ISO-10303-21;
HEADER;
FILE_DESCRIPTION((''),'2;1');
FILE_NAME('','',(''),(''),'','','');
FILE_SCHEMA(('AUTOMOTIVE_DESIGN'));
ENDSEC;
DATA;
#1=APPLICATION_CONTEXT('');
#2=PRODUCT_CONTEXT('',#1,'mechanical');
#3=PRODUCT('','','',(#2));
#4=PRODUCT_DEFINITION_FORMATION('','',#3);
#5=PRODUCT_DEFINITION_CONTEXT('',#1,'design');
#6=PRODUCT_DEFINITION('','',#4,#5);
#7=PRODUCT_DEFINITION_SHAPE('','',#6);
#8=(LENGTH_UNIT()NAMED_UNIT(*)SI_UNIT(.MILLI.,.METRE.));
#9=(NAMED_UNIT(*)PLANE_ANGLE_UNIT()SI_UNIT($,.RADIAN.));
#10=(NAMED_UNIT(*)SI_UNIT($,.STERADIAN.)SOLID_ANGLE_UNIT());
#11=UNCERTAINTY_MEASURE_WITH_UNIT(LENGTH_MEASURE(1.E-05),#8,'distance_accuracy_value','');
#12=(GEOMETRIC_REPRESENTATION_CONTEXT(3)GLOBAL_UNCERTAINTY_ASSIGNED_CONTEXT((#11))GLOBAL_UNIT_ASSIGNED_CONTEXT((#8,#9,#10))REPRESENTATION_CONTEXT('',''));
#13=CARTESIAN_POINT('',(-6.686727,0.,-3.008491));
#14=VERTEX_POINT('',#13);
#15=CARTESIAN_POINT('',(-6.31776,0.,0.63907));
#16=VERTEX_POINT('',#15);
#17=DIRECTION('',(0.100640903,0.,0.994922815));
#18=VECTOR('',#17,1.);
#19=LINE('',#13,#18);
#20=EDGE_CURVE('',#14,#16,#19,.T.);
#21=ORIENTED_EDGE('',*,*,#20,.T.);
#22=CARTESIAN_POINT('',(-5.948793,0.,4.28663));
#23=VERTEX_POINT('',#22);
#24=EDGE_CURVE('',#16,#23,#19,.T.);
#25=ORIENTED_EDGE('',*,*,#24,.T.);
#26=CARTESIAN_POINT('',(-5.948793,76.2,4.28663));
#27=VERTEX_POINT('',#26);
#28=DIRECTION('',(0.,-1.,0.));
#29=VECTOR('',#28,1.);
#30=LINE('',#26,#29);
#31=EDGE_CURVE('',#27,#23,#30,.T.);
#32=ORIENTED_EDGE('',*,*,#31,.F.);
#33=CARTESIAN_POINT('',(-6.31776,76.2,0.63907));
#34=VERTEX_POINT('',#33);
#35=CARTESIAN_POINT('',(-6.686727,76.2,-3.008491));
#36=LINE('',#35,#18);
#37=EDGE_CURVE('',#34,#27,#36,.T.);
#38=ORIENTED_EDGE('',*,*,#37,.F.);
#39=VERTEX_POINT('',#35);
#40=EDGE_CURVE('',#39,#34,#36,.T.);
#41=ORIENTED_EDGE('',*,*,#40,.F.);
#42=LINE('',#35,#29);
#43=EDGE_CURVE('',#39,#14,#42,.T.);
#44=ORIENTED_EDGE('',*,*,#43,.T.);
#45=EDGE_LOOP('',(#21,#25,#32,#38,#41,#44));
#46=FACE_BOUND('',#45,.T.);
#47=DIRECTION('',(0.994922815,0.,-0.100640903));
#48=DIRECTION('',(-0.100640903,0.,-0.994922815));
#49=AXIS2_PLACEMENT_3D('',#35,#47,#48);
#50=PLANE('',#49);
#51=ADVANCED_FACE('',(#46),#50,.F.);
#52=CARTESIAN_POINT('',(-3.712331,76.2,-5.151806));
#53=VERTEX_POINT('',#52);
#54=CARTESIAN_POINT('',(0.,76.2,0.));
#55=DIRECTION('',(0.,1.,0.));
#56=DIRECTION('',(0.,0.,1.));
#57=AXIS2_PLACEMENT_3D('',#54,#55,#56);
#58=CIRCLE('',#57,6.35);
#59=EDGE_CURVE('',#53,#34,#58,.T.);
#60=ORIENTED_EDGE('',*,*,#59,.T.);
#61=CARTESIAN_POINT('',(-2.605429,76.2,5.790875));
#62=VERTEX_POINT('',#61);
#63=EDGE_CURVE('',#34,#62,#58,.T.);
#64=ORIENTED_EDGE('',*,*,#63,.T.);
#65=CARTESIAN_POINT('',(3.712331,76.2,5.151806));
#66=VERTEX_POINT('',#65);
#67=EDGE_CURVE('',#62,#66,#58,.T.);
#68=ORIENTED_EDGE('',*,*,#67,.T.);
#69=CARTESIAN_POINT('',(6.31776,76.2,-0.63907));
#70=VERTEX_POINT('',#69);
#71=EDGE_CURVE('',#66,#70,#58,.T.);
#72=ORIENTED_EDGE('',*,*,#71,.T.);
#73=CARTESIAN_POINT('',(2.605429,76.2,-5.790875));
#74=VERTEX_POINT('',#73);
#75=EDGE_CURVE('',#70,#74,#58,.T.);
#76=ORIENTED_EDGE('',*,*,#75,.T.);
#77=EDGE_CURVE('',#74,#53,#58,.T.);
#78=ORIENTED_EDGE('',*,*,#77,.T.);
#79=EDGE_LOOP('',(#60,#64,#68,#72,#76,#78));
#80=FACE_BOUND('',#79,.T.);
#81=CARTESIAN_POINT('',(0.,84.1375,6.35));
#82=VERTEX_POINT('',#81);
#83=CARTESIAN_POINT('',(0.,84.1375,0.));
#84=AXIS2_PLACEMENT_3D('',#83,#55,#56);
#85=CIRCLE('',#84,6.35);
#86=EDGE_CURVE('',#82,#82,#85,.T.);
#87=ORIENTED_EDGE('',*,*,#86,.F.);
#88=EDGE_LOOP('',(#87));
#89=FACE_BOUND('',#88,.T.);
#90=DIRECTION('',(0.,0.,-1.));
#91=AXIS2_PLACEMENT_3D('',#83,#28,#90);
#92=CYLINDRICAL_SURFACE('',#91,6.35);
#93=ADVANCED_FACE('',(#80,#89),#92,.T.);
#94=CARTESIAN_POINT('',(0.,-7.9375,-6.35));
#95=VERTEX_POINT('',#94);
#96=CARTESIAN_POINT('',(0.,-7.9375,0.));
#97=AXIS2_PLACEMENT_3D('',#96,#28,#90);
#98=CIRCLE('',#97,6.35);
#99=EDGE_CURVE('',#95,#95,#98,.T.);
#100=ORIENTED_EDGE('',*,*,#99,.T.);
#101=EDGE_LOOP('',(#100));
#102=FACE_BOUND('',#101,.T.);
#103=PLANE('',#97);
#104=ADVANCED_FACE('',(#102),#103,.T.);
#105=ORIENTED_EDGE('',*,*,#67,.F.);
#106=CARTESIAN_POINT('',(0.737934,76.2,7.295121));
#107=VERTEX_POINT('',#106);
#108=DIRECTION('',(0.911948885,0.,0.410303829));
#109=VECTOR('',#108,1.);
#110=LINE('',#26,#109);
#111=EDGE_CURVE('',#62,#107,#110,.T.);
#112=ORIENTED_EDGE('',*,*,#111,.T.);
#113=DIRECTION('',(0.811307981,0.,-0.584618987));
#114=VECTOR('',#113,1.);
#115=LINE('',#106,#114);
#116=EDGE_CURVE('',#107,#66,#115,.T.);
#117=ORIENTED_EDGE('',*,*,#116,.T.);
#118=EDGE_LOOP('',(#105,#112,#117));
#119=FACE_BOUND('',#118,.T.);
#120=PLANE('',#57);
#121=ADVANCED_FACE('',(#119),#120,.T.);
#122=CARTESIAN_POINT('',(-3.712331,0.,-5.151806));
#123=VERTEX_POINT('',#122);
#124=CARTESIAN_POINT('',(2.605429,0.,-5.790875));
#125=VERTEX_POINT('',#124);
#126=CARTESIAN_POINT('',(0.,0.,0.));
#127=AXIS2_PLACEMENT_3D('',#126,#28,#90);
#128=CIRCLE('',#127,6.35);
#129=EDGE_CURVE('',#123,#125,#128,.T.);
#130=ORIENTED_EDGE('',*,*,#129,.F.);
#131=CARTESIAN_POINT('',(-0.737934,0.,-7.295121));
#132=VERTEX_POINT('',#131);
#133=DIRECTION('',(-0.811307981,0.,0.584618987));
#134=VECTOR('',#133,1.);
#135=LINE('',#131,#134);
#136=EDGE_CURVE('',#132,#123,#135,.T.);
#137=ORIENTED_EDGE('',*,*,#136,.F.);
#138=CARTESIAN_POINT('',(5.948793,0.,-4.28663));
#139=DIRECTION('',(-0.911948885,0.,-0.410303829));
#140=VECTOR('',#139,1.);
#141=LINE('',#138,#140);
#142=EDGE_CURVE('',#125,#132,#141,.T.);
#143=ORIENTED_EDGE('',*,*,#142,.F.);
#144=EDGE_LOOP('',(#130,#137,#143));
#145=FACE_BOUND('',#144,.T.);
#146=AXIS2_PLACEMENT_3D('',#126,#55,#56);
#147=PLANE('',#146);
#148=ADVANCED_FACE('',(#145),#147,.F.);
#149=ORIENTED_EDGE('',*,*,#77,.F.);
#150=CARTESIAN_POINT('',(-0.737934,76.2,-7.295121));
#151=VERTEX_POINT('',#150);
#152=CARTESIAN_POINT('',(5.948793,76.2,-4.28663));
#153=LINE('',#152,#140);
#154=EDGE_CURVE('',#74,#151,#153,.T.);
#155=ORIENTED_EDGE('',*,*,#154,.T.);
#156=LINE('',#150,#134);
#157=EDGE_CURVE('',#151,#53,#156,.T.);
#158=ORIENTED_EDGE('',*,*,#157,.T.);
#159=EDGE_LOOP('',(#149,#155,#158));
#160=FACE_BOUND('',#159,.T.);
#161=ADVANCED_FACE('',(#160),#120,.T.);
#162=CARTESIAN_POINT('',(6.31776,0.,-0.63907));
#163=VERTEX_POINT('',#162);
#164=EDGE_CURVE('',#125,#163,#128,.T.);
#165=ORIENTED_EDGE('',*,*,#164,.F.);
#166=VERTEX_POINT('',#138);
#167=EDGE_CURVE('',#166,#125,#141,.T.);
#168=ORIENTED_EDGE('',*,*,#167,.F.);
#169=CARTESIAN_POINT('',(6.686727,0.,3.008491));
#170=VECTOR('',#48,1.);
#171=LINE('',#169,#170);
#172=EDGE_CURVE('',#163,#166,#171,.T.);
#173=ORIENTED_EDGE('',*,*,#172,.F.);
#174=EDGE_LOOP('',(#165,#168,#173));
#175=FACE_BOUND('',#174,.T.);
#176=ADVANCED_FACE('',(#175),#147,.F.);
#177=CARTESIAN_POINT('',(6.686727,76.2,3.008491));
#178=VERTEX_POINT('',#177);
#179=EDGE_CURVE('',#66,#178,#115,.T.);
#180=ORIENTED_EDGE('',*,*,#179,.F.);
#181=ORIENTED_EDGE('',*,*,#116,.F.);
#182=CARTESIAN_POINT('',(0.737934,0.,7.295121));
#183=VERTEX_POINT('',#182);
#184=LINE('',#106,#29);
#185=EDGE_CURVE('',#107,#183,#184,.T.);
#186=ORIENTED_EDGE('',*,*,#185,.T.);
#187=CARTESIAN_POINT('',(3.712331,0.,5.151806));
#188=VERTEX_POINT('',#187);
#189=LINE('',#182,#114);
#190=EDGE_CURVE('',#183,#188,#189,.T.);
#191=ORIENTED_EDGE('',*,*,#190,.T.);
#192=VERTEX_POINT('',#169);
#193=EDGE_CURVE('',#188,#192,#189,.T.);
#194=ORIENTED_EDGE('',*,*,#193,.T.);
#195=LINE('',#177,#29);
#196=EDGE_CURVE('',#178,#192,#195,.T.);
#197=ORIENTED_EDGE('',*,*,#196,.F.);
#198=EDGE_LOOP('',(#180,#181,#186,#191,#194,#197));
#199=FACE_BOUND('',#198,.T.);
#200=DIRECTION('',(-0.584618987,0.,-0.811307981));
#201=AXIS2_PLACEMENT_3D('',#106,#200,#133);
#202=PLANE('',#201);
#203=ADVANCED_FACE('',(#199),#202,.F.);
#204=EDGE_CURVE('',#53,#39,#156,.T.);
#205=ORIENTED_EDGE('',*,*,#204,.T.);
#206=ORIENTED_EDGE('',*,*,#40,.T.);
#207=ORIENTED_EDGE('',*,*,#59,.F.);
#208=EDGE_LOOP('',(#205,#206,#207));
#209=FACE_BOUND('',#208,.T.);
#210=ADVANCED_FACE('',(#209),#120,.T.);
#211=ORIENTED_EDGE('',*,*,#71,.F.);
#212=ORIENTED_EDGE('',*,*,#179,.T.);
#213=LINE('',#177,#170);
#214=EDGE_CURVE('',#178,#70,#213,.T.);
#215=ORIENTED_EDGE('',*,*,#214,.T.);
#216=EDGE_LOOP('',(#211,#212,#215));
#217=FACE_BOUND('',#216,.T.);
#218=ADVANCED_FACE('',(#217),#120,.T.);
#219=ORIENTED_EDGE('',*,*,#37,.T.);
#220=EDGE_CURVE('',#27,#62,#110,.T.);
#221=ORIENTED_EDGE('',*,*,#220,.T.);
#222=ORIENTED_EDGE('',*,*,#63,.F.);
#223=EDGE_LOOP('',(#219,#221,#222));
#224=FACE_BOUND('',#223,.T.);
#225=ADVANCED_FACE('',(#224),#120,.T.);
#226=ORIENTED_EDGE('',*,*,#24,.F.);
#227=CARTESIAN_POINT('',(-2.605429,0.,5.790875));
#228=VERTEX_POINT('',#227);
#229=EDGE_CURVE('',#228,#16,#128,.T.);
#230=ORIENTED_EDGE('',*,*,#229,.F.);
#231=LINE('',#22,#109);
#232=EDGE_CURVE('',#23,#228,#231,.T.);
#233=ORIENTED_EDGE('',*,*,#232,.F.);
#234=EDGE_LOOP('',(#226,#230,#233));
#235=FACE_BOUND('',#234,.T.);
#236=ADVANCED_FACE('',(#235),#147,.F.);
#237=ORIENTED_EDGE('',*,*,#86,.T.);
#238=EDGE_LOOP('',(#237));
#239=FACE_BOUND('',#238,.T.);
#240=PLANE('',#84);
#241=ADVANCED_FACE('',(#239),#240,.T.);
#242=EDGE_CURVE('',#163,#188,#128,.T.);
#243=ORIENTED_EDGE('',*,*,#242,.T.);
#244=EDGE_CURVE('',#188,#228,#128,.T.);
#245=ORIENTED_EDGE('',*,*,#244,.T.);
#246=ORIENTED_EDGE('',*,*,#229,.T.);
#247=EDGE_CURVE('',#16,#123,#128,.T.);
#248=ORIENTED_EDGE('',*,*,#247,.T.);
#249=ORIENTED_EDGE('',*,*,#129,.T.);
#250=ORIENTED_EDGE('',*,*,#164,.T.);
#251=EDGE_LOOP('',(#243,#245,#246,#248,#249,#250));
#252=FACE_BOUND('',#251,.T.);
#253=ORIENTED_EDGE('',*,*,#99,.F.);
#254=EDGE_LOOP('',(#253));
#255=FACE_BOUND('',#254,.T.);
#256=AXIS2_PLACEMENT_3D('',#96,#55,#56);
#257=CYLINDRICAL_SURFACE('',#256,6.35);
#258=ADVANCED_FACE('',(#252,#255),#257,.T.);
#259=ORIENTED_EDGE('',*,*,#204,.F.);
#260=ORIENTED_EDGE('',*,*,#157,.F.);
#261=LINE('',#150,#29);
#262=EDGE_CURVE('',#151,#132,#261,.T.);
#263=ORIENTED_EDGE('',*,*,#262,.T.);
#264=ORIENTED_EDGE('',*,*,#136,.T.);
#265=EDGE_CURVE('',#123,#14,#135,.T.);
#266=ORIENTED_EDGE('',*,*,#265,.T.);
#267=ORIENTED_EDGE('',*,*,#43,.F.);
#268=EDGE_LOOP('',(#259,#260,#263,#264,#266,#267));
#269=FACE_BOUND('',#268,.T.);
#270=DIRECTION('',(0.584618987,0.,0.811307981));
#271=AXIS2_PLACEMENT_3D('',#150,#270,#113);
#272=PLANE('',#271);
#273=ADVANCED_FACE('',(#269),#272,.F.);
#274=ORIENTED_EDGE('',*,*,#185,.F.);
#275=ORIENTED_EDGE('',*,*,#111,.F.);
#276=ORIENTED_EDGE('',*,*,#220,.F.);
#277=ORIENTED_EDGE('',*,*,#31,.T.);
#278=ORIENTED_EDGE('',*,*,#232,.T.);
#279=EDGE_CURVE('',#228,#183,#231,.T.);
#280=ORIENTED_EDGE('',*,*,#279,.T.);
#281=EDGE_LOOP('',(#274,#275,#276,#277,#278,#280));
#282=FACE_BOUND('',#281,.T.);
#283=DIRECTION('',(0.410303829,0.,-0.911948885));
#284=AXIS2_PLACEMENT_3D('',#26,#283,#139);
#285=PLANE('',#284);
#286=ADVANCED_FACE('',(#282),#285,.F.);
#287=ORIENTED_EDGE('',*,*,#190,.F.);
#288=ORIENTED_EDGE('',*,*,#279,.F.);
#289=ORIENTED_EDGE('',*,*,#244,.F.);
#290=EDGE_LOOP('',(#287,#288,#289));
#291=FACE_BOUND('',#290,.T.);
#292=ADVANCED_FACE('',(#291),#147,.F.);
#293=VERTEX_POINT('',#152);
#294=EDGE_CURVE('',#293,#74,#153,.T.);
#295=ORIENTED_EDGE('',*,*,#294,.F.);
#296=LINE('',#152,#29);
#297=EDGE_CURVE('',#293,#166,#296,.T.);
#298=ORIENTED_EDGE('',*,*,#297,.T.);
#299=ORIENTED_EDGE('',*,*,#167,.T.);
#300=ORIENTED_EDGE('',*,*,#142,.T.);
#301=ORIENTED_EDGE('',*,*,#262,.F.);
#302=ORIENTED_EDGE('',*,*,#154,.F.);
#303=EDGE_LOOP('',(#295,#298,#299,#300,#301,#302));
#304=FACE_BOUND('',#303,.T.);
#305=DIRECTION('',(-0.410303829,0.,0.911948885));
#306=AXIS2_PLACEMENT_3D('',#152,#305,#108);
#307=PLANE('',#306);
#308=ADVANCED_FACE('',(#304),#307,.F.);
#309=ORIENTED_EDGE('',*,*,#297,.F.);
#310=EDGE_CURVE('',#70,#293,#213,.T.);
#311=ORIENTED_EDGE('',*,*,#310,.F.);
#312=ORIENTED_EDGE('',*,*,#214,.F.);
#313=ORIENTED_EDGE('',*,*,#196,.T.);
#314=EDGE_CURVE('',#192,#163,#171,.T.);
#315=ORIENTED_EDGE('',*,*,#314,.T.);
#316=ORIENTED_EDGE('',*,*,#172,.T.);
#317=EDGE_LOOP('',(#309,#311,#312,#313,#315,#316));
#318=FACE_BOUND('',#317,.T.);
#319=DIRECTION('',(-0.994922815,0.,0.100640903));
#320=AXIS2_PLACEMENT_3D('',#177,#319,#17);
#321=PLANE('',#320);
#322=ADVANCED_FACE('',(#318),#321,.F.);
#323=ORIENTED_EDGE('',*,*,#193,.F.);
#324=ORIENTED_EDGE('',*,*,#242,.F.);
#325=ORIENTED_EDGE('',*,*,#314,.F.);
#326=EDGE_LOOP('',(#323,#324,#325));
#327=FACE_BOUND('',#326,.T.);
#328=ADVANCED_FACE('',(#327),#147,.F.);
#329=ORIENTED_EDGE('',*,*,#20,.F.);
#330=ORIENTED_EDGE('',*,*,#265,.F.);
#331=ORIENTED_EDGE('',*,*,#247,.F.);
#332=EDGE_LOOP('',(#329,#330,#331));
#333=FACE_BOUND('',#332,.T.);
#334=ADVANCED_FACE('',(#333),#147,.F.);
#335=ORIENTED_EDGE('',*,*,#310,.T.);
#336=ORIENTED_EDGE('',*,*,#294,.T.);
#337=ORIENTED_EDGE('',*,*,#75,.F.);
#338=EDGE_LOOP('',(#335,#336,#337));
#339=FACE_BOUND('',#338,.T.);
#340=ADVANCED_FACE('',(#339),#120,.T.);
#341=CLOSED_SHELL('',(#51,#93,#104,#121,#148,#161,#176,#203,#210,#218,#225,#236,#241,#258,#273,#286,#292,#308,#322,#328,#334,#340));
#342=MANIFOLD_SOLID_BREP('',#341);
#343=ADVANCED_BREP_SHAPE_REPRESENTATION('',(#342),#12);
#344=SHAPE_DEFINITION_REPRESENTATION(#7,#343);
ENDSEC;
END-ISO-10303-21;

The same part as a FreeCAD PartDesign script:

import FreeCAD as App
import Part
import Sketcher

V = App.Vector
Q = App.Units.Quantity


def add_polygon(sketch, points):
    """Adds a closed chain of lines whose ends are joined by coincident constraints."""
    first, n = sketch.GeometryCount, len(points)
    for a, b in zip(points, points[1:] + points[:1]):
        sketch.addGeometry(Part.LineSegment(App.Vector(*a, 0), App.Vector(*b, 0)), False)
    for i in range(n):
        sketch.addConstraint(Sketcher.Constraint("Coincident", first + i, 2, first + (i + 1) % n, 1))

doc = App.newDocument("Part")
body = doc.addObject("PartDesign::Body", "Body")

# Sketch on XZ plane
sketch1 = body.newObject("Sketcher::SketchObject", "Sketch")
sketch1.AttachmentSupport = (doc.getObject("XZ_Plane"), [""])
sketch1.MapMode = "FlatFace"
add_polygon(sketch1, [(6, -4), (-1, -7), (-7, -3), (-6, 4), (1, 7), (7, 3)])  # lines 0-5
sketch1.addConstraint([
    Sketcher.Constraint("Symmetric", 0, 2, 3, 2, -1, 1),
    Sketcher.Constraint("Symmetric", 1, 2, 4, 2, -1, 1),
    Sketcher.Constraint("Symmetric", 2, 2, 5, 2, -1, 1),
    Sketcher.Constraint("Equal", 0, 1),
    Sketcher.Constraint("Equal", 1, 2),
    Sketcher.Constraint("Distance", 0, 7.332348),
    Sketcher.Constraint("DistanceY", 0, 2, -1, 1, 7.295121),
    Sketcher.Constraint("DistanceY", 1, 2, -1, 1, 3.008491),
    Sketcher.Constraint("DistanceY", -1, 1, 2, 2, 4.28663),
])
pad1 = body.newObject("PartDesign::Pad", "Pad")
pad1.Profile = sketch1
pad1.Length = Q("3 in")
pad1.Reversed = True

# Sketch on XZ plane
sketch2 = body.newObject("Sketcher::SketchObject", "Sketch001")
sketch2.AttachmentSupport = (doc.getObject("XZ_Plane"), [""])
sketch2.MapMode = "FlatFace"
sketch2.addGeometry(Part.Circle(V(0, 0, 0), V(0, 0, 1), 6), False)
sketch2.addConstraint([
    Sketcher.Constraint("Coincident", 0, 3, -1, 1),
    Sketcher.Constraint("Diameter", 0, Q("0.5 in")),
])
pad2 = body.newObject("PartDesign::Pad", "Pad001")
pad2.Profile = sketch2
pad2.Length = Q("0.3125 in")

# Sketch on XZ plane
sketch3 = body.newObject("Sketcher::SketchObject", "Sketch002")
sketch3.AttachmentSupport = (doc.getObject("XZ_Plane"), [""])
sketch3.MapMode = "FlatFace"
sketch3.AttachmentOffset = App.Placement(V(0, 0, -3 * 25.4), App.Rotation())
sketch3.addGeometry(Part.Circle(V(0, 0, 0), V(0, 0, 1), 6), False)
sketch3.addConstraint([
    Sketcher.Constraint("Coincident", 0, 3, -1, 1),
    Sketcher.Constraint("Diameter", 0, Q("0.5 in")),
])
pad3 = body.newObject("PartDesign::Pad", "Pad002")
pad3.Profile = sketch3
pad3.Length = Q("0.3125 in")
pad3.Reversed = True

doc.recompute()
